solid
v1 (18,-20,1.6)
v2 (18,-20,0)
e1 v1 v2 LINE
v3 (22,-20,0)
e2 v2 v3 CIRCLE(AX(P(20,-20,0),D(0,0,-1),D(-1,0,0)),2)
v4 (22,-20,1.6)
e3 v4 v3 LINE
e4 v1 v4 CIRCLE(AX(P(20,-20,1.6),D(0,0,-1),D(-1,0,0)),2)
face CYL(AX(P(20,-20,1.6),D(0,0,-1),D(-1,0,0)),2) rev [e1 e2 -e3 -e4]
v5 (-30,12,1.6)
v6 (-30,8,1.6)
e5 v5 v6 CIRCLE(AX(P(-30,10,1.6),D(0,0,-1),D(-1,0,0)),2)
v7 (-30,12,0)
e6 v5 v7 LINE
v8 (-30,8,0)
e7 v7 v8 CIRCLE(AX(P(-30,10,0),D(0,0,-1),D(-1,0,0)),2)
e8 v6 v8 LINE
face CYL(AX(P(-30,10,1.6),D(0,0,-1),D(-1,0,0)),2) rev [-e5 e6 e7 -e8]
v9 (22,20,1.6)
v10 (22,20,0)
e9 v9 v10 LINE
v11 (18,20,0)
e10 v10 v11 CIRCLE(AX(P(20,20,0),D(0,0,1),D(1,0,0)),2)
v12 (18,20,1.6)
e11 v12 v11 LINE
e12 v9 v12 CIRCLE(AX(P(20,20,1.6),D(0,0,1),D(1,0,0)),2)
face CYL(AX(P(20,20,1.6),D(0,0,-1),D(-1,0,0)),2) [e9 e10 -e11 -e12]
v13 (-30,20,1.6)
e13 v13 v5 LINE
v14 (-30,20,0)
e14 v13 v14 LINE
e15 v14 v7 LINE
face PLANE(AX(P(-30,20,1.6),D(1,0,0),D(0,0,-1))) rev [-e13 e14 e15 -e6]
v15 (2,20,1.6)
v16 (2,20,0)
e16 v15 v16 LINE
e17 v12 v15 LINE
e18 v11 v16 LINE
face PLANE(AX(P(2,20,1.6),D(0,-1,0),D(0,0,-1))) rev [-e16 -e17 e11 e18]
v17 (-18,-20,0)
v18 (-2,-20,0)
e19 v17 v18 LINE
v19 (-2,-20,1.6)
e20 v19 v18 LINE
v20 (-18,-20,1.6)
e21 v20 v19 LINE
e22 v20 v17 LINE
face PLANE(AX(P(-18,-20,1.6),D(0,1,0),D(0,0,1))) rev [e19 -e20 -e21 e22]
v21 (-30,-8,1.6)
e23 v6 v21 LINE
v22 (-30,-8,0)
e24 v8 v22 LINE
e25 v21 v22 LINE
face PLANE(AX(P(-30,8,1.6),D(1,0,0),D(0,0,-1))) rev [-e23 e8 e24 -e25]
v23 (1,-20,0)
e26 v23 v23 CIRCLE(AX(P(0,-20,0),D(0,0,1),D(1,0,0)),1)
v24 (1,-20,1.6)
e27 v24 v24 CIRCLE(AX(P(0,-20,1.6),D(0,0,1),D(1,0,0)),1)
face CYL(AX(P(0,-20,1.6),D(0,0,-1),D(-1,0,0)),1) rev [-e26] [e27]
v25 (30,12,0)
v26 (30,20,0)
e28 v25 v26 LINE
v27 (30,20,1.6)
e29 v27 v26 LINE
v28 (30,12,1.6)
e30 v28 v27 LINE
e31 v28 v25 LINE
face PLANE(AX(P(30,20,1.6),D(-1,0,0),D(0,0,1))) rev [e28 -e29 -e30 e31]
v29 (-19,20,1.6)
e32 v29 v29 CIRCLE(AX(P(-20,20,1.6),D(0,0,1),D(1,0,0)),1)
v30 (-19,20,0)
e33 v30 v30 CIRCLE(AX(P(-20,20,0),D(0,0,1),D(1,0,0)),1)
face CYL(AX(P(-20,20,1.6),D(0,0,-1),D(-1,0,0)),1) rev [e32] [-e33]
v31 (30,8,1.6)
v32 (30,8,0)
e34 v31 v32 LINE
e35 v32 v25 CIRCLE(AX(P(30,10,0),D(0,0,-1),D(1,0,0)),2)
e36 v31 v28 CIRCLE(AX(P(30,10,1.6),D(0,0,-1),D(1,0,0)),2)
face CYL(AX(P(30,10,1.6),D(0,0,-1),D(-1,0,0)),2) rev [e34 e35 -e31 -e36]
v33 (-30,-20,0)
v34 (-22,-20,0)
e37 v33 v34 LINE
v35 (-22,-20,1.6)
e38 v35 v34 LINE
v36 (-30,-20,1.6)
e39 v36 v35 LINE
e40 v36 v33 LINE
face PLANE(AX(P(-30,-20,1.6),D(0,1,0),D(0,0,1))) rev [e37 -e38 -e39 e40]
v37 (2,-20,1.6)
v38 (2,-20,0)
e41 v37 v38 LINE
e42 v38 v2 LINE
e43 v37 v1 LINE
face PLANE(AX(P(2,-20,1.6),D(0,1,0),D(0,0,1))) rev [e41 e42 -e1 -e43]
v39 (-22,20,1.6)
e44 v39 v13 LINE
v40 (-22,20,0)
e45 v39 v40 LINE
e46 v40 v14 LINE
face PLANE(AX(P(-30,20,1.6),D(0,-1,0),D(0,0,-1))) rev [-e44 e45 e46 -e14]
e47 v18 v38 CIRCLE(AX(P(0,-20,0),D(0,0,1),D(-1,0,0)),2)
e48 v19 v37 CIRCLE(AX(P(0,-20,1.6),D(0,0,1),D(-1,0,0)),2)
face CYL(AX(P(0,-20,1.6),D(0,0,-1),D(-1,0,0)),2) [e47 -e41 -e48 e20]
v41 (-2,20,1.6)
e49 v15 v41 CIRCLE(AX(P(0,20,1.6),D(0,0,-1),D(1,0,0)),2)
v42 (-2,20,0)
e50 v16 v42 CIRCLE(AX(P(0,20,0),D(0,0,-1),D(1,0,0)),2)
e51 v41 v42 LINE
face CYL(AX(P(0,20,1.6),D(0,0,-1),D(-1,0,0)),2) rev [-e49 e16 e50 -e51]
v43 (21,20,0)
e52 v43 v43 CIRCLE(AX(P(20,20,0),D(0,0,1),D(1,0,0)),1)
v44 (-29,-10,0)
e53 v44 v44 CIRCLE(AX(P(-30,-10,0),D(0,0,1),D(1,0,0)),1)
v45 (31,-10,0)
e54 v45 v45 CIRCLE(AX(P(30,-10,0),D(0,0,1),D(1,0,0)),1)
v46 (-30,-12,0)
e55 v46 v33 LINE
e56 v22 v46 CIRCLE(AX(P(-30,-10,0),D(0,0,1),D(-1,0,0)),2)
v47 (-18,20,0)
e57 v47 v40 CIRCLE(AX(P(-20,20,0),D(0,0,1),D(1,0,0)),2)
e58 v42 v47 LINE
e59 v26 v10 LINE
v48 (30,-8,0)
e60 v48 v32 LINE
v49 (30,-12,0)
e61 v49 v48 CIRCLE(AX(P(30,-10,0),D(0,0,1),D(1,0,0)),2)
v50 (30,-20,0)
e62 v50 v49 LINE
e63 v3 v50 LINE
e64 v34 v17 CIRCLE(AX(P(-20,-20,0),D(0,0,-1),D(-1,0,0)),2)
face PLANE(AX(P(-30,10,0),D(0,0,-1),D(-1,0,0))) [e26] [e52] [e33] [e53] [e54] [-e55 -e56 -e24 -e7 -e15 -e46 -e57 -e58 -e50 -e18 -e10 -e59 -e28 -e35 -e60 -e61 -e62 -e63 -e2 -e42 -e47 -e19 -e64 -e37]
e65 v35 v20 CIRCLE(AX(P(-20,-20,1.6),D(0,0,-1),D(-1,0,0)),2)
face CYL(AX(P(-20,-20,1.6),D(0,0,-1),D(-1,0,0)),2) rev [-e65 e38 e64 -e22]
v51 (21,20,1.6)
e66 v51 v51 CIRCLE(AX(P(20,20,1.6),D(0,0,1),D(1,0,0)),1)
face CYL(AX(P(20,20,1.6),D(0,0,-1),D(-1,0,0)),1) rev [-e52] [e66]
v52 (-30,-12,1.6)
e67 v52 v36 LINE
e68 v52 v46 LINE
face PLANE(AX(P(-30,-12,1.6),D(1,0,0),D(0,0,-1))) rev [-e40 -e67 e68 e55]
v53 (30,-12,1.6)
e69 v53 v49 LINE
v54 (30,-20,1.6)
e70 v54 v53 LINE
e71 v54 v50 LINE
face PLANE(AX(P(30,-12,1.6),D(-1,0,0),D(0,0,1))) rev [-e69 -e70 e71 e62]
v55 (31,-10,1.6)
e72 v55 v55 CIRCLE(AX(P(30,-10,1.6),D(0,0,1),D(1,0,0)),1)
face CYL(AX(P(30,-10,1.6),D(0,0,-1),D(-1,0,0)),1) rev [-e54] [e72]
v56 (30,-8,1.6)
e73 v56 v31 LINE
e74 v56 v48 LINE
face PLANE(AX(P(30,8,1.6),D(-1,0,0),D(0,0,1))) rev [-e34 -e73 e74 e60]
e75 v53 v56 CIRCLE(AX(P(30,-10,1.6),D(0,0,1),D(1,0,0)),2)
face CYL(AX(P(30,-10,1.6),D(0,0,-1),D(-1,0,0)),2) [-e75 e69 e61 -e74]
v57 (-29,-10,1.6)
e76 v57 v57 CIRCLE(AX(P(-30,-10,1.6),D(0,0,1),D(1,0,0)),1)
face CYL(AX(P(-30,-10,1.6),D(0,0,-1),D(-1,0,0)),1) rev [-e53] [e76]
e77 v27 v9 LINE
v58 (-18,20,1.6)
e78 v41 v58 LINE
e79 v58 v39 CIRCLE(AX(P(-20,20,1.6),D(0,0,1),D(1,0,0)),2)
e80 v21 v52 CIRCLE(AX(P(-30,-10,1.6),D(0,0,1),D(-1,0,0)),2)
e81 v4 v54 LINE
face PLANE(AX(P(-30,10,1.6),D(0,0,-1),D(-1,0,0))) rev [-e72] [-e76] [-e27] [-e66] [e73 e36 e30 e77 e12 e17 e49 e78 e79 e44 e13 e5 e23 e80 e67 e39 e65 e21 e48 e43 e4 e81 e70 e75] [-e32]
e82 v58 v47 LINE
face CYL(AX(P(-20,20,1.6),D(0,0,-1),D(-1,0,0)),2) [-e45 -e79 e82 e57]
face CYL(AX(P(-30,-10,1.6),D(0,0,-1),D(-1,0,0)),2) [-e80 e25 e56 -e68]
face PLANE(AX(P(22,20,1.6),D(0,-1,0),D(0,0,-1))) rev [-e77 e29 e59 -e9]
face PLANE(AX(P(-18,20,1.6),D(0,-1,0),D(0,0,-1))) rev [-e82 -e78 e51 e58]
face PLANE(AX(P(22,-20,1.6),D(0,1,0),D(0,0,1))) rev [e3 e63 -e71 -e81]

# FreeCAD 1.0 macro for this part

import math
import FreeCAD as App
import Part
import Sketcher

V = App.Vector
Q = App.Units.Quantity

doc = App.newDocument("Part")
params = doc.addObject("Spreadsheet::Sheet", "Params")
for row, (alias, value) in enumerate([
    ("sketch1_diameter", "2 mm"),
    ("sketch1_radius", "2 mm"),
    ("sketch1_width", "8 mm"),
    ("sketch1_width2", "16 mm"),
    ("pad1_length", "1.6 mm"),
], start=1):
    params.set(f"A{row}", alias)
    params.set(f"B{row}", "=" + value)
    params.setAlias(f"B{row}", alias)

body = doc.addObject("PartDesign::Body", "Body")

sketch1 = doc.addObject("Sketcher::SketchObject", "Sketch")
body.addObject(sketch1)
sketch1.AttachmentSupport = (doc.XY_Plane, [""])
sketch1.MapMode = "FlatFace"
sketch1.addGeometry([
    Part.LineSegment(V(-30, 8, 0), V(-30, -8, 0)),
    Part.ArcOfCircle(Part.Circle(V(-30, -10, 0), V(0, 0, 1), 2), math.radians(90), math.radians(270)),
    Part.LineSegment(V(-30, -12, 0), V(-30, -20, 0)),
    Part.LineSegment(V(-30, -20, 0), V(-22, -20, 0)),
    Part.ArcOfCircle(Part.Circle(V(-20, -20, 0), V(0, 0, 1), 2), math.radians(0), math.radians(180)),
    Part.LineSegment(V(-18, -20, 0), V(-2, -20, 0)),
    Part.ArcOfCircle(Part.Circle(V(0, -20, 0), V(0, 0, 1), 2), math.radians(180), math.radians(360)),
    Part.LineSegment(V(2, -20, 0), V(18, -20, 0)),
    Part.ArcOfCircle(Part.Circle(V(20, -20, 0), V(0, 0, 1), 2), math.radians(0), math.radians(180)),
    Part.LineSegment(V(22, -20, 0), V(30, -20, 0)),
    Part.LineSegment(V(30, -20, 0), V(30, -12, 0)),
    Part.ArcOfCircle(Part.Circle(V(30, -10, 0), V(0, 0, 1), 2), math.radians(-90), math.radians(90)),
    Part.LineSegment(V(30, -8, 0), V(30, 8, 0)),
    Part.ArcOfCircle(Part.Circle(V(30, 10, 0), V(0, 0, 1), 2), math.radians(90), math.radians(270)),
    Part.LineSegment(V(30, 12, 0), V(30, 20, 0)),
    Part.LineSegment(V(30, 20, 0), V(22, 20, 0)),
    Part.ArcOfCircle(Part.Circle(V(20, 20, 0), V(0, 0, 1), 2), math.radians(0), math.radians(180)),
    Part.LineSegment(V(18, 20, 0), V(2, 20, 0)),
    Part.ArcOfCircle(Part.Circle(V(0, 20, 0), V(0, 0, 1), 2), math.radians(180), math.radians(360)),
    Part.LineSegment(V(-2, 20, 0), V(-18, 20, 0)),
    Part.ArcOfCircle(Part.Circle(V(-20, 20, 0), V(0, 0, 1), 2), math.radians(0), math.radians(180)),
    Part.LineSegment(V(-22, 20, 0), V(-30, 20, 0)),
    Part.LineSegment(V(-30, 20, 0), V(-30, 12, 0)),
    Part.ArcOfCircle(Part.Circle(V(-30, 10, 0), V(0, 0, 1), 2), math.radians(-90), math.radians(90)),
    Part.Circle(V(-30, -10, 0), V(0, 0, 1), 1),
    Part.Circle(V(0, -20, 0), V(0, 0, 1), 1),
    Part.Circle(V(30, -10, 0), V(0, 0, 1), 1),
    Part.Circle(V(-20, 20, 0), V(0, 0, 1), 1),
    Part.Circle(V(20, 20, 0), V(0, 0, 1), 1),
], False)
sketch1.addConstraint([
    Sketcher.Constraint("Coincident", 0, 2, 1, 1),
    Sketcher.Constraint("Coincident", 1, 2, 2, 1),
    Sketcher.Constraint("Coincident", 2, 2, 3, 1),
    Sketcher.Constraint("Coincident", 3, 2, 4, 2),
    Sketcher.Constraint("Coincident", 4, 1, 5, 1),
    Sketcher.Constraint("Coincident", 5, 2, 6, 1),
    Sketcher.Constraint("Coincident", 6, 2, 7, 1),
    Sketcher.Constraint("Coincident", 7, 2, 8, 2),
    Sketcher.Constraint("Coincident", 8, 1, 9, 1),
    Sketcher.Constraint("Coincident", 9, 2, 10, 1),
    Sketcher.Constraint("Coincident", 10, 2, 11, 1),
    Sketcher.Constraint("Coincident", 11, 2, 12, 1),
    Sketcher.Constraint("Coincident", 12, 2, 13, 2),
    Sketcher.Constraint("Coincident", 13, 1, 14, 1),
    Sketcher.Constraint("Coincident", 14, 2, 15, 1),
    Sketcher.Constraint("Coincident", 15, 2, 16, 1),
    Sketcher.Constraint("Coincident", 16, 2, 17, 1),
    Sketcher.Constraint("Coincident", 17, 2, 18, 2),
    Sketcher.Constraint("Coincident", 18, 1, 19, 1),
    Sketcher.Constraint("Coincident", 19, 2, 20, 1),
    Sketcher.Constraint("Coincident", 20, 2, 21, 1),
    Sketcher.Constraint("Coincident", 21, 2, 22, 1),
    Sketcher.Constraint("Coincident", 22, 2, 23, 2),
    Sketcher.Constraint("Coincident", 23, 1, 0, 1),
    Sketcher.Constraint("Vertical", 0),
    Sketcher.Constraint("Vertical", 2),
    Sketcher.Constraint("Horizontal", 3),
    Sketcher.Constraint("Horizontal", 5),
    Sketcher.Constraint("Horizontal", 7),
    Sketcher.Constraint("Horizontal", 9),
    Sketcher.Constraint("Vertical", 10),
    Sketcher.Constraint("Vertical", 12),
    Sketcher.Constraint("Vertical", 14),
    Sketcher.Constraint("Horizontal", 15),
    Sketcher.Constraint("Horizontal", 17),
    Sketcher.Constraint("Horizontal", 19),
    Sketcher.Constraint("Horizontal", 21),
    Sketcher.Constraint("Vertical", 22),
    Sketcher.Constraint("Coincident", 24, 3, 1, 3),
    Sketcher.Constraint("Coincident", 25, 3, 6, 3),
    Sketcher.Constraint("Coincident", 26, 3, 11, 3),
    Sketcher.Constraint("Coincident", 27, 3, 20, 3),
    Sketcher.Constraint("Coincident", 28, 3, 16, 3),
    Sketcher.Constraint("Equal", 1, 4),
    Sketcher.Constraint("Equal", 4, 6),
    Sketcher.Constraint("Equal", 6, 8),
    Sketcher.Constraint("Equal", 8, 11),
    Sketcher.Constraint("Equal", 11, 13),
    Sketcher.Constraint("Equal", 13, 16),
    Sketcher.Constraint("Equal", 16, 18),
    Sketcher.Constraint("Equal", 18, 20),
    Sketcher.Constraint("Equal", 20, 23),
    Sketcher.Constraint("Equal", 24, 25),
    Sketcher.Constraint("Equal", 25, 26),
    Sketcher.Constraint("Equal", 26, 27),
    Sketcher.Constraint("Equal", 27, 28),
    Sketcher.Constraint("Symmetric", 1, 3, 13, 3, -1, 1),
    Sketcher.Constraint("Symmetric", 4, 3, 16, 3, -1, 1),
    Sketcher.Constraint("Symmetric", 6, 3, 18, 3, -1, 1),
    Sketcher.Constraint("Symmetric", 8, 3, 20, 3, -1, 1),
    Sketcher.Constraint("Symmetric", 11, 3, 23, 3, -1, 1),
    Sketcher.Constraint("Symmetric", 2, 2, 14, 2, -1, 1),
    Sketcher.Constraint("Symmetric", 9, 2, 21, 2, -1, 1),
    Sketcher.Constraint("Symmetric", 4, 3, 8, 3, -2),
    Sketcher.Constraint("Symmetric", 1, 3, 11, 3, -2),
    Sketcher.Constraint("Symmetric", 5, 2, 6, 2, -2),
    Sketcher.Constraint("Symmetric", 2, 2, 9, 2, -2),
    Sketcher.Constraint("Horizontal", 4, 3, 6, 3),
    Sketcher.Constraint("Horizontal", 25, 3, 2, 2),
    Sketcher.Constraint("Horizontal", 3, 2, 4, 1),
    Sketcher.Constraint("Horizontal", 15, 2, 16, 2),
    Sketcher.Constraint("Horizontal", 17, 2, 18, 1),
    Sketcher.Constraint("Vertical", 24, 3, 0, 2),
    Sketcher.Constraint("Vertical", 0, 2, 1, 2),
    Sketcher.Constraint("Vertical", 10, 2, 11, 2),
    Sketcher.Constraint("Equal", 19, 0),
    Sketcher.Constraint("Equal", 21, 2),
    Sketcher.Constraint("Diameter", 24, Q("2 mm")),
    Sketcher.Constraint("Radius", 1, Q("2 mm")),
    Sketcher.Constraint("DistanceX", 3, 1, 3, 2, Q("8 mm")),
    Sketcher.Constraint("DistanceX", 5, 1, 5, 2, Q("16 mm")),
])
sketch1.setExpression("Constraints[77]", "Params.sketch1_diameter")
sketch1.setExpression("Constraints[78]", "Params.sketch1_radius")
sketch1.setExpression("Constraints[79]", "Params.sketch1_width")
sketch1.setExpression("Constraints[80]", "Params.sketch1_width2")
pad1 = doc.addObject("PartDesign::Pad", "Pad")
body.addObject(pad1)
pad1.Profile = sketch1
pad1.setExpression("Length", "Params.pad1_length")

doc.recompute()
